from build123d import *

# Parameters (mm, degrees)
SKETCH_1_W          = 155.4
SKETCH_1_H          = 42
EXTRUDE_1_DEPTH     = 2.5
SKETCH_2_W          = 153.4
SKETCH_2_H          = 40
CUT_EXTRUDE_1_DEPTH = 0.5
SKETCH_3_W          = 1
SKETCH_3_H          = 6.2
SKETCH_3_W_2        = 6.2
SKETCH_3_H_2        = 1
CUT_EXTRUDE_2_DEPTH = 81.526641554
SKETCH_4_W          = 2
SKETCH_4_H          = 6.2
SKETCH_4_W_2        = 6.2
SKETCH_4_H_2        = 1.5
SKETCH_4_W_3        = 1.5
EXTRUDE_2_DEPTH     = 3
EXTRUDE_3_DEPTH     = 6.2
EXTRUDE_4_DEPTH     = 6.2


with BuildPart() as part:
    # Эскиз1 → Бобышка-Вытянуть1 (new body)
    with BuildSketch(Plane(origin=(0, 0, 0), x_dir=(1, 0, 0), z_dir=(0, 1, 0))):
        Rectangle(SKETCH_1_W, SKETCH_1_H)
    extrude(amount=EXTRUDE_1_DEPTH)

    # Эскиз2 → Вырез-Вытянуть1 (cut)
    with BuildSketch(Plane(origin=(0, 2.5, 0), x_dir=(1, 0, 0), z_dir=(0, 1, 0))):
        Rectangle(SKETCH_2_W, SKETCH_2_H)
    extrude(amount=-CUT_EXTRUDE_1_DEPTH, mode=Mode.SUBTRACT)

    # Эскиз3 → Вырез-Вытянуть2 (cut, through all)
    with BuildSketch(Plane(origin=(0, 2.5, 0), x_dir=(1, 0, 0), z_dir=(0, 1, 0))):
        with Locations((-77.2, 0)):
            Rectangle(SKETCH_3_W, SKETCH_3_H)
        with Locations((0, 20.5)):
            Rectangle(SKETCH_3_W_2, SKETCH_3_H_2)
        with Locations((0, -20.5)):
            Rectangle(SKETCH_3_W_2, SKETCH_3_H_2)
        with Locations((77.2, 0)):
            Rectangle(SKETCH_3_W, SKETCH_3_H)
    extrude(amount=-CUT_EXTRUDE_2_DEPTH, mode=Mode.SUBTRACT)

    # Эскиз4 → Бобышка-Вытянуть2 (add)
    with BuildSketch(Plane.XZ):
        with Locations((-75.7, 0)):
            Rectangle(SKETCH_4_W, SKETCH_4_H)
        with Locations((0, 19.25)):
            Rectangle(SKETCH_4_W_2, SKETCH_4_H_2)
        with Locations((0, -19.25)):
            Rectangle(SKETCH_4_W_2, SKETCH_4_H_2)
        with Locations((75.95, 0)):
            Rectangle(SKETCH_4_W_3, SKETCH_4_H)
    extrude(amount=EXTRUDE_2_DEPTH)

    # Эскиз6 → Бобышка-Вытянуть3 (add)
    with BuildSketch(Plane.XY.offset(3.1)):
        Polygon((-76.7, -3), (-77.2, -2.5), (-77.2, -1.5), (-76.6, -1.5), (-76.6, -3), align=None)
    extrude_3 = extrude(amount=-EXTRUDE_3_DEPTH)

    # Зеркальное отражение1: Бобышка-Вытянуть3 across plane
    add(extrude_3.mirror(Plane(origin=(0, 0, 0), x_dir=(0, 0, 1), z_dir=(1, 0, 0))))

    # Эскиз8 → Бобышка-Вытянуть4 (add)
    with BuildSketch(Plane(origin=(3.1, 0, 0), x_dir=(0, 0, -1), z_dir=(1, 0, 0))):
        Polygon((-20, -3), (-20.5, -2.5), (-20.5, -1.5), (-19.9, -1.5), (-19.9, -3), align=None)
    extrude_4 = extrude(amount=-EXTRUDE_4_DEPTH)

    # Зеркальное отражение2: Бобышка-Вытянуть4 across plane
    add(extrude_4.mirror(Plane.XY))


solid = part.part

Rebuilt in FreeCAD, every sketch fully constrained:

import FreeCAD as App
import Part
import Sketcher
Q = App.Units.Quantity

doc = App.newDocument("Part")
body = doc.addObject("PartDesign::Body", "Body")

sketch1 = body.newObject("Sketcher::SketchObject", "Sketch")
sketch1.AttachmentSupport = (doc.getObject("XZ_Plane"), [""])
sketch1.MapMode = "FlatFace"
sketch1.addGeometry(Part.LineSegment(App.Vector(-77.7, -21, 0), App.Vector(-77.7, 21, 0)), False)
sketch1.addGeometry(Part.LineSegment(App.Vector(-77.7, 21, 0), App.Vector(77.7, 21, 0)), False)
sketch1.addGeometry(Part.LineSegment(App.Vector(77.7, 21, 0), App.Vector(77.7, -21, 0)), False)
sketch1.addGeometry(Part.LineSegment(App.Vector(77.7, -21, 0), App.Vector(-77.7, -21, 0)), False)
sketch1.addConstraint(Sketcher.Constraint("Coincident", 0, 2, 1, 1))
sketch1.addConstraint(Sketcher.Constraint("Coincident", 1, 2, 2, 1))
sketch1.addConstraint(Sketcher.Constraint("Coincident", 2, 2, 3, 1))
sketch1.addConstraint(Sketcher.Constraint("Coincident", 3, 2, 0, 1))
sketch1.addConstraint(Sketcher.Constraint("Vertical", 0))
sketch1.addConstraint(Sketcher.Constraint("Horizontal", 1))
sketch1.addConstraint(Sketcher.Constraint("Vertical", 2))
sketch1.addConstraint(Sketcher.Constraint("Horizontal", 3))
sketch1.addConstraint(Sketcher.Constraint("Symmetric", 0, 2, 2, 2, -1, 1))
sketch1.addConstraint(Sketcher.Constraint("DistanceY", 0, 1, 0, 2, 42.0))
sketch1.addConstraint(Sketcher.Constraint("DistanceX", 1, 1, 1, 2, 155.4))
pad1 = body.newObject("PartDesign::Pad", "Pad")
pad1.Profile = sketch1
pad1.Length = 2.5
pad1.Reversed = True

sketch2 = body.newObject("Sketcher::SketchObject", "Sketch001")
sketch2.AttachmentSupport = (doc.getObject("XZ_Plane"), [""])
sketch2.MapMode = "FlatFace"
sketch2.AttachmentOffset = App.Placement(App.Vector(0, 0, -2.5), App.Rotation())
sketch2.addGeometry(Part.LineSegment(App.Vector(-76.7, -20, 0), App.Vector(-76.7, 20, 0)), False)
sketch2.addGeometry(Part.LineSegment(App.Vector(-76.7, 20, 0), App.Vector(76.7, 20, 0)), False)
sketch2.addGeometry(Part.LineSegment(App.Vector(76.7, 20, 0), App.Vector(76.7, -20, 0)), False)
sketch2.addGeometry(Part.LineSegment(App.Vector(76.7, -20, 0), App.Vector(-76.7, -20, 0)), False)
sketch2.addConstraint(Sketcher.Constraint("Coincident", 0, 2, 1, 1))
sketch2.addConstraint(Sketcher.Constraint("Coincident", 1, 2, 2, 1))
sketch2.addConstraint(Sketcher.Constraint("Coincident", 2, 2, 3, 1))
sketch2.addConstraint(Sketcher.Constraint("Coincident", 3, 2, 0, 1))
sketch2.addConstraint(Sketcher.Constraint("Vertical", 0))
sketch2.addConstraint(Sketcher.Constraint("Horizontal", 1))
sketch2.addConstraint(Sketcher.Constraint("Vertical", 2))
sketch2.addConstraint(Sketcher.Constraint("Horizontal", 3))
sketch2.addConstraint(Sketcher.Constraint("Symmetric", 0, 2, 2, 2, -1, 1))
sketch2.addConstraint(Sketcher.Constraint("DistanceY", 0, 1, 0, 2, 40.0))
sketch2.addConstraint(Sketcher.Constraint("DistanceX", 1, 1, 1, 2, 153.4))
pocket1 = body.newObject("PartDesign::Pocket", "Pocket")
pocket1.Profile = sketch2
pocket1.Length = 0.5
pocket1.Reversed = True

sketch3 = body.newObject("Sketcher::SketchObject", "Sketch002")
sketch3.AttachmentSupport = (doc.getObject("XZ_Plane"), [""])
sketch3.MapMode = "FlatFace"
sketch3.AttachmentOffset = App.Placement(App.Vector(0, 0, -2.5), App.Rotation())
sketch3.addGeometry(Part.LineSegment(App.Vector(-77.7, -3.1, 0), App.Vector(-77.7, 3.1, 0)), False)
sketch3.addGeometry(Part.LineSegment(App.Vector(-77.7, 3.1, 0), App.Vector(-76.7, 3.1, 0)), False)
sketch3.addGeometry(Part.LineSegment(App.Vector(-76.7, 3.1, 0), App.Vector(-76.7, -3.1, 0)), False)
sketch3.addGeometry(Part.LineSegment(App.Vector(-76.7, -3.1, 0), App.Vector(-77.7, -3.1, 0)), False)
sketch3.addGeometry(Part.LineSegment(App.Vector(-3.1, -21, 0), App.Vector(-3.1, -20, 0)), False)
sketch3.addGeometry(Part.LineSegment(App.Vector(-3.1, -20, 0), App.Vector(3.1, -20, 0)), False)
sketch3.addGeometry(Part.LineSegment(App.Vector(3.1, -20, 0), App.Vector(3.1, -21, 0)), False)
sketch3.addGeometry(Part.LineSegment(App.Vector(3.1, -21, 0), App.Vector(-3.1, -21, 0)), False)
sketch3.addGeometry(Part.LineSegment(App.Vector(-3.1, 20, 0), App.Vector(-3.1, 21, 0)), False)
sketch3.addGeometry(Part.LineSegment(App.Vector(-3.1, 21, 0), App.Vector(3.1, 21, 0)), False)
sketch3.addGeometry(Part.LineSegment(App.Vector(3.1, 21, 0), App.Vector(3.1, 20, 0)), False)
sketch3.addGeometry(Part.LineSegment(App.Vector(3.1, 20, 0), App.Vector(-3.1, 20, 0)), False)
sketch3.addGeometry(Part.LineSegment(App.Vector(76.7, -3.1, 0), App.Vector(76.7, 3.1, 0)), False)
sketch3.addGeometry(Part.LineSegment(App.Vector(76.7, 3.1, 0), App.Vector(77.7, 3.1, 0)), False)
sketch3.addGeometry(Part.LineSegment(App.Vector(77.7, 3.1, 0), App.Vector(77.7, -3.1, 0)), False)
sketch3.addGeometry(Part.LineSegment(App.Vector(77.7, -3.1, 0), App.Vector(76.7, -3.1, 0)), False)
sketch3.addConstraint(Sketcher.Constraint("Coincident", 0, 2, 1, 1))
sketch3.addConstraint(Sketcher.Constraint("Coincident", 1, 2, 2, 1))
sketch3.addConstraint(Sketcher.Constraint("Coincident", 2, 2, 3, 1))
sketch3.addConstraint(Sketcher.Constraint("Coincident", 3, 2, 0, 1))
sketch3.addConstraint(Sketcher.Constraint("Coincident", 4, 2, 5, 1))
sketch3.addConstraint(Sketcher.Constraint("Coincident", 5, 2, 6, 1))
sketch3.addConstraint(Sketcher.Constraint("Coincident", 6, 2, 7, 1))
sketch3.addConstraint(Sketcher.Constraint("Coincident", 7, 2, 4, 1))
sketch3.addConstraint(Sketcher.Constraint("Coincident", 8, 2, 9, 1))
sketch3.addConstraint(Sketcher.Constraint("Coincident", 9, 2, 10, 1))
sketch3.addConstraint(Sketcher.Constraint("Coincident", 10, 2, 11, 1))
sketch3.addConstraint(Sketcher.Constraint("Coincident", 11, 2, 8, 1))
sketch3.addConstraint(Sketcher.Constraint("Coincident", 12, 2, 13, 1))
sketch3.addConstraint(Sketcher.Constraint("Coincident", 13, 2, 14, 1))
sketch3.addConstraint(Sketcher.Constraint("Coincident", 14, 2, 15, 1))
sketch3.addConstraint(Sketcher.Constraint("Coincident", 15, 2, 12, 1))
sketch3.addConstraint(Sketcher.Constraint("Vertical", 0))
sketch3.addConstraint(Sketcher.Constraint("Horizontal", 1))
sketch3.addConstraint(Sketcher.Constraint("Vertical", 2))
sketch3.addConstraint(Sketcher.Constraint("Horizontal", 3))
sketch3.addConstraint(Sketcher.Constraint("Vertical", 4))
sketch3.addConstraint(Sketcher.Constraint("Horizontal", 5))
sketch3.addConstraint(Sketcher.Constraint("Vertical", 6))
sketch3.addConstraint(Sketcher.Constraint("Horizontal", 7))
sketch3.addConstraint(Sketcher.Constraint("Vertical", 8))
sketch3.addConstraint(Sketcher.Constraint("Horizontal", 9))
sketch3.addConstraint(Sketcher.Constraint("Vertical", 10))
sketch3.addConstraint(Sketcher.Constraint("Horizontal", 11))
sketch3.addConstraint(Sketcher.Constraint("Vertical", 12))
sketch3.addConstraint(Sketcher.Constraint("Horizontal", 13))
sketch3.addConstraint(Sketcher.Constraint("Vertical", 14))
sketch3.addConstraint(Sketcher.Constraint("Horizontal", 15))
sketch3.addConstraint(Sketcher.Constraint("Symmetric", 6, 2, 8, 2, -1, 1))
sketch3.addConstraint(Sketcher.Constraint("Symmetric", 4, 2, 10, 2, -1, 1))
sketch3.addConstraint(Sketcher.Constraint("Symmetric", 2, 2, 12, 2, -1, 1))
sketch3.addConstraint(Sketcher.Constraint("Symmetric", 0, 2, 14, 2, -1, 1))
sketch3.addConstraint(Sketcher.Constraint("Horizontal", 1, 2, 12, 2))
sketch3.addConstraint(Sketcher.Constraint("Vertical", 7, 2, 8, 2))
sketch3.addConstraint(Sketcher.Constraint("Equal", 11, 0))
sketch3.addConstraint(Sketcher.Constraint("Equal", 15, 4))
sketch3.addConstraint(Sketcher.Constraint("DistanceX", 1, 1, 1, 2, 1.0))
sketch3.addConstraint(Sketcher.Constraint("DistanceX", 5, 1, 5, 2, 6.2))
sketch3.addConstraint(Sketcher.Constraint("DistanceY", 4, 2, -1, 1, 20.0))
sketch3.addConstraint(Sketcher.Constraint("DistanceX", 0, 2, -1, 1, 77.7))
pocket2 = body.newObject("PartDesign::Pocket", "Pocket001")
pocket2.Profile = sketch3
pocket2.Type = "ThroughAll"
pocket2.Reversed = True

sketch4 = body.newObject("Sketcher::SketchObject", "Sketch003")
sketch4.AttachmentSupport = (doc.getObject("XZ_Plane"), [""])
sketch4.MapMode = "FlatFace"
sketch4.addGeometry(Part.LineSegment(App.Vector(-76.7, 3.1, 0), App.Vector(-76.7, -3.1, 0)), False)
sketch4.addGeometry(Part.LineSegment(App.Vector(-76.7, -3.1, 0), App.Vector(-74.7, -3.1, 0)), False)
sketch4.addGeometry(Part.LineSegment(App.Vector(-74.7, -3.1, 0), App.Vector(-74.7, 3.1, 0)), False)
sketch4.addGeometry(Part.LineSegment(App.Vector(-74.7, 3.1, 0), App.Vector(-76.7, 3.1, 0)), False)
sketch4.addGeometry(Part.LineSegment(App.Vector(-3.1, 20, 0), App.Vector(-3.1, 18.5, 0)), False)
sketch4.addGeometry(Part.LineSegment(App.Vector(-3.1, 18.5, 0), App.Vector(3.1, 18.5, 0)), False)
sketch4.addGeometry(Part.LineSegment(App.Vector(3.1, 18.5, 0), App.Vector(3.1, 20, 0)), False)
sketch4.addGeometry(Part.LineSegment(App.Vector(3.1, 20, 0), App.Vector(-3.1, 20, 0)), False)
sketch4.addGeometry(Part.LineSegment(App.Vector(-3.1, -18.5, 0), App.Vector(-3.1, -20, 0)), False)
sketch4.addGeometry(Part.LineSegment(App.Vector(-3.1, -20, 0), App.Vector(3.1, -20, 0)), False)
sketch4.addGeometry(Part.LineSegment(App.Vector(3.1, -20, 0), App.Vector(3.1, -18.5, 0)), False)
sketch4.addGeometry(Part.LineSegment(App.Vector(3.1, -18.5, 0), App.Vector(-3.1, -18.5, 0)), False)
sketch4.addGeometry(Part.LineSegment(App.Vector(75.2, 3.1, 0), App.Vector(75.2, -3.1, 0)), False)
sketch4.addGeometry(Part.LineSegment(App.Vector(75.2, -3.1, 0), App.Vector(76.7, -3.1, 0)), False)
sketch4.addGeometry(Part.LineSegment(App.Vector(76.7, -3.1, 0), App.Vector(76.7, 3.1, 0)), False)
sketch4.addGeometry(Part.LineSegment(App.Vector(76.7, 3.1, 0), App.Vector(75.2, 3.1, 0)), False)
sketch4.addConstraint(Sketcher.Constraint("Coincident", 0, 2, 1, 1))
sketch4.addConstraint(Sketcher.Constraint("Coincident", 1, 2, 2, 1))
sketch4.addConstraint(Sketcher.Constraint("Coincident", 2, 2, 3, 1))
sketch4.addConstraint(Sketcher.Constraint("Coincident", 3, 2, 0, 1))
sketch4.addConstraint(Sketcher.Constraint("Coincident", 4, 2, 5, 1))
sketch4.addConstraint(Sketcher.Constraint("Coincident", 5, 2, 6, 1))
sketch4.addConstraint(Sketcher.Constraint("Coincident", 6, 2, 7, 1))
sketch4.addConstraint(Sketcher.Constraint("Coincident", 7, 2, 4, 1))
sketch4.addConstraint(Sketcher.Constraint("Coincident", 8, 2, 9, 1))
sketch4.addConstraint(Sketcher.Constraint("Coincident", 9, 2, 10, 1))
sketch4.addConstraint(Sketcher.Constraint("Coincident", 10, 2, 11, 1))
sketch4.addConstraint(Sketcher.Constraint("Coincident", 11, 2, 8, 1))
sketch4.addConstraint(Sketcher.Constraint("Coincident", 12, 2, 13, 1))
sketch4.addConstraint(Sketcher.Constraint("Coincident", 13, 2, 14, 1))
sketch4.addConstraint(Sketcher.Constraint("Coincident", 14, 2, 15, 1))
sketch4.addConstraint(Sketcher.Constraint("Coincident", 15, 2, 12, 1))
sketch4.addConstraint(Sketcher.Constraint("Vertical", 0))
sketch4.addConstraint(Sketcher.Constraint("Horizontal", 1))
sketch4.addConstraint(Sketcher.Constraint("Vertical", 2))
sketch4.addConstraint(Sketcher.Constraint("Horizontal", 3))
sketch4.addConstraint(Sketcher.Constraint("Vertical", 4))
sketch4.addConstraint(Sketcher.Constraint("Horizontal", 5))
sketch4.addConstraint(Sketcher.Constraint("Vertical", 6))
sketch4.addConstraint(Sketcher.Constraint("Horizontal", 7))
sketch4.addConstraint(Sketcher.Constraint("Vertical", 8))
sketch4.addConstraint(Sketcher.Constraint("Horizontal", 9))
sketch4.addConstraint(Sketcher.Constraint("Vertical", 10))
sketch4.addConstraint(Sketcher.Constraint("Horizontal", 11))
sketch4.addConstraint(Sketcher.Constraint("Vertical", 12))
sketch4.addConstraint(Sketcher.Constraint("Horizontal", 13))
sketch4.addConstraint(Sketcher.Constraint("Vertical", 14))
sketch4.addConstraint(Sketcher.Constraint("Horizontal", 15))
sketch4.addConstraint(Sketcher.Constraint("Symmetric", 6, 2, 8, 2, -1, 1))
sketch4.addConstraint(Sketcher.Constraint("Symmetric", 4, 2, 10, 2, -1, 1))
sketch4.addConstraint(Sketcher.Constraint("Symmetric", 3, 2, 13, 2, -1, 1))
sketch4.addConstraint(Sketcher.Constraint("Horizontal", 1, 2, 12, 2))
sketch4.addConstraint(Sketcher.Constraint("Horizontal", 3, 2, 14, 2))
sketch4.addConstraint(Sketcher.Constraint("Vertical", 7, 2, 8, 2))
sketch4.addConstraint(Sketcher.Constraint("Equal", 11, 0))
sketch4.addConstraint(Sketcher.Constraint("Equal", 15, 4))
sketch4.addConstraint(Sketcher.Constraint("DistanceX", 1, 1, 1, 2, 2.0))
sketch4.addConstraint(Sketcher.Constraint("DistanceX", 5, 1, 5, 2, 6.2))
sketch4.addConstraint(Sketcher.Constraint("DistanceX", 13, 1, 13, 2, 1.5))
sketch4.addConstraint(Sketcher.Constraint("DistanceY", -1, 1, 6, 2, 20.0))
sketch4.addConstraint(Sketcher.Constraint("DistanceX", 0, 2, -1, 1, 76.7))
pad2 = body.newObject("PartDesign::Pad", "Pad001")
pad2.Profile = sketch4
pad2.Length = 3

sketch5 = body.newObject("Sketcher::SketchObject", "Sketch004")
sketch5.AttachmentSupport = (doc.getObject("XY_Plane"), [""])
sketch5.MapMode = "FlatFace"
sketch5.AttachmentOffset = App.Placement(App.Vector(0, 0, 3.1), App.Rotation())
sketch5.addGeometry(Part.LineSegment(App.Vector(-77.2, -2.5, 0), App.Vector(-76.7, -3, 0)), False)
sketch5.addGeometry(Part.LineSegment(App.Vector(-76.7, -3, 0), App.Vector(-76.6, -3, 0)), False)
sketch5.addGeometry(Part.LineSegment(App.Vector(-76.6, -3, 0), App.Vector(-76.6, -1.5, 0)), False)
sketch5.addGeometry(Part.LineSegment(App.Vector(-76.6, -1.5, 0), App.Vector(-77.2, -1.5, 0)), False)
sketch5.addGeometry(Part.LineSegment(App.Vector(-77.2, -1.5, 0), App.Vector(-77.2, -2.5, 0)), False)
sketch5.addConstraint(Sketcher.Constraint("Coincident", 0, 2, 1, 1))
sketch5.addConstraint(Sketcher.Constraint("Coincident", 1, 2, 2, 1))
sketch5.addConstraint(Sketcher.Constraint("Coincident", 2, 2, 3, 1))
sketch5.addConstraint(Sketcher.Constraint("Coincident", 3, 2, 4, 1))
sketch5.addConstraint(Sketcher.Constraint("Coincident", 4, 2, 0, 1))
sketch5.addConstraint(Sketcher.Constraint("Horizontal", 1))
sketch5.addConstraint(Sketcher.Constraint("Vertical", 2))
sketch5.addConstraint(Sketcher.Constraint("Horizontal", 3))
sketch5.addConstraint(Sketcher.Constraint("Vertical", 4))
sketch5.addConstraint(Sketcher.Constraint("DistanceY", 4, 2, 4, 1, 1.0))
sketch5.addConstraint(Sketcher.Constraint("Angle", 0, Q("-45 deg")))
sketch5.addConstraint(Sketcher.Constraint("DistanceX", 1, 1, 1, 2, 0.1))
sketch5.addConstraint(Sketcher.Constraint("DistanceX", 3, 2, 3, 1, 0.6))
sketch5.addConstraint(Sketcher.Constraint("DistanceY", 0, 2, -1, 1, 3.0))
sketch5.addConstraint(Sketcher.Constraint("DistanceX", 0, 2, -1, 1, 76.7))
pad3 = body.newObject("PartDesign::Pad", "Pad002")
pad3.Profile = sketch5
pad3.Length = 6.2
pad3.Reversed = True
doc.recompute()

mirrored = body.newObject("PartDesign::Mirrored", "Mirrored")
mirrored.Originals = [pad3]
mirrored.MirrorPlane = (doc.getObject("YZ_Plane"), [""])
body.Tip = mirrored

sketch6 = body.newObject("Sketcher::SketchObject", "Sketch005")
sketch6.AttachmentSupport = (doc.getObject("YZ_Plane"), [""])
sketch6.MapMode = "FlatFace"
sketch6.AttachmentOffset = App.Placement(App.Vector(0, 0, 3.1), App.Rotation())
sketch6.addGeometry(Part.LineSegment(App.Vector(-2.5, 20.5, 0), App.Vector(-3, 20, 0)), False)
sketch6.addGeometry(Part.LineSegment(App.Vector(-3, 20, 0), App.Vector(-3, 19.9, 0)), False)
sketch6.addGeometry(Part.LineSegment(App.Vector(-3, 19.9, 0), App.Vector(-1.5, 19.9, 0)), False)
sketch6.addGeometry(Part.LineSegment(App.Vector(-1.5, 19.9, 0), App.Vector(-1.5, 20.5, 0)), False)
sketch6.addGeometry(Part.LineSegment(App.Vector(-1.5, 20.5, 0), App.Vector(-2.5, 20.5, 0)), False)
sketch6.addConstraint(Sketcher.Constraint("Coincident", 0, 2, 1, 1))
sketch6.addConstraint(Sketcher.Constraint("Coincident", 1, 2, 2, 1))
sketch6.addConstraint(Sketcher.Constraint("Coincident", 2, 2, 3, 1))
sketch6.addConstraint(Sketcher.Constraint("Coincident", 3, 2, 4, 1))
sketch6.addConstraint(Sketcher.Constraint("Coincident", 4, 2, 0, 1))
sketch6.addConstraint(Sketcher.Constraint("Vertical", 1))
sketch6.addConstraint(Sketcher.Constraint("Horizontal", 2))
sketch6.addConstraint(Sketcher.Constraint("Vertical", 3))
sketch6.addConstraint(Sketcher.Constraint("Horizontal", 4))
sketch6.addConstraint(Sketcher.Constraint("DistanceX", 4, 2, 4, 1, 1.0))
sketch6.addConstraint(Sketcher.Constraint("Angle", 0, Q("-135 deg")))
sketch6.addConstraint(Sketcher.Constraint("DistanceX", 2, 1, 2, 2, 1.5))
sketch6.addConstraint(Sketcher.Constraint("DistanceY", 1, 2, 1, 1, 0.1))
sketch6.addConstraint(Sketcher.Constraint("DistanceX", 0, 2, -1, 1, 3.0))
sketch6.addConstraint(Sketcher.Constraint("DistanceY", -1, 1, 0, 2, 20.0))
pad4 = body.newObject("PartDesign::Pad", "Pad003")
pad4.Profile = sketch6
pad4.Length = 6.2
pad4.Reversed = True
doc.recompute()

mirrored2 = body.newObject("PartDesign::Mirrored", "Mirrored001")
mirrored2.Originals = [pad4]
mirrored2.MirrorPlane = (doc.getObject("XY_Plane"), [""])
body.Tip = mirrored2

doc.recompute()
